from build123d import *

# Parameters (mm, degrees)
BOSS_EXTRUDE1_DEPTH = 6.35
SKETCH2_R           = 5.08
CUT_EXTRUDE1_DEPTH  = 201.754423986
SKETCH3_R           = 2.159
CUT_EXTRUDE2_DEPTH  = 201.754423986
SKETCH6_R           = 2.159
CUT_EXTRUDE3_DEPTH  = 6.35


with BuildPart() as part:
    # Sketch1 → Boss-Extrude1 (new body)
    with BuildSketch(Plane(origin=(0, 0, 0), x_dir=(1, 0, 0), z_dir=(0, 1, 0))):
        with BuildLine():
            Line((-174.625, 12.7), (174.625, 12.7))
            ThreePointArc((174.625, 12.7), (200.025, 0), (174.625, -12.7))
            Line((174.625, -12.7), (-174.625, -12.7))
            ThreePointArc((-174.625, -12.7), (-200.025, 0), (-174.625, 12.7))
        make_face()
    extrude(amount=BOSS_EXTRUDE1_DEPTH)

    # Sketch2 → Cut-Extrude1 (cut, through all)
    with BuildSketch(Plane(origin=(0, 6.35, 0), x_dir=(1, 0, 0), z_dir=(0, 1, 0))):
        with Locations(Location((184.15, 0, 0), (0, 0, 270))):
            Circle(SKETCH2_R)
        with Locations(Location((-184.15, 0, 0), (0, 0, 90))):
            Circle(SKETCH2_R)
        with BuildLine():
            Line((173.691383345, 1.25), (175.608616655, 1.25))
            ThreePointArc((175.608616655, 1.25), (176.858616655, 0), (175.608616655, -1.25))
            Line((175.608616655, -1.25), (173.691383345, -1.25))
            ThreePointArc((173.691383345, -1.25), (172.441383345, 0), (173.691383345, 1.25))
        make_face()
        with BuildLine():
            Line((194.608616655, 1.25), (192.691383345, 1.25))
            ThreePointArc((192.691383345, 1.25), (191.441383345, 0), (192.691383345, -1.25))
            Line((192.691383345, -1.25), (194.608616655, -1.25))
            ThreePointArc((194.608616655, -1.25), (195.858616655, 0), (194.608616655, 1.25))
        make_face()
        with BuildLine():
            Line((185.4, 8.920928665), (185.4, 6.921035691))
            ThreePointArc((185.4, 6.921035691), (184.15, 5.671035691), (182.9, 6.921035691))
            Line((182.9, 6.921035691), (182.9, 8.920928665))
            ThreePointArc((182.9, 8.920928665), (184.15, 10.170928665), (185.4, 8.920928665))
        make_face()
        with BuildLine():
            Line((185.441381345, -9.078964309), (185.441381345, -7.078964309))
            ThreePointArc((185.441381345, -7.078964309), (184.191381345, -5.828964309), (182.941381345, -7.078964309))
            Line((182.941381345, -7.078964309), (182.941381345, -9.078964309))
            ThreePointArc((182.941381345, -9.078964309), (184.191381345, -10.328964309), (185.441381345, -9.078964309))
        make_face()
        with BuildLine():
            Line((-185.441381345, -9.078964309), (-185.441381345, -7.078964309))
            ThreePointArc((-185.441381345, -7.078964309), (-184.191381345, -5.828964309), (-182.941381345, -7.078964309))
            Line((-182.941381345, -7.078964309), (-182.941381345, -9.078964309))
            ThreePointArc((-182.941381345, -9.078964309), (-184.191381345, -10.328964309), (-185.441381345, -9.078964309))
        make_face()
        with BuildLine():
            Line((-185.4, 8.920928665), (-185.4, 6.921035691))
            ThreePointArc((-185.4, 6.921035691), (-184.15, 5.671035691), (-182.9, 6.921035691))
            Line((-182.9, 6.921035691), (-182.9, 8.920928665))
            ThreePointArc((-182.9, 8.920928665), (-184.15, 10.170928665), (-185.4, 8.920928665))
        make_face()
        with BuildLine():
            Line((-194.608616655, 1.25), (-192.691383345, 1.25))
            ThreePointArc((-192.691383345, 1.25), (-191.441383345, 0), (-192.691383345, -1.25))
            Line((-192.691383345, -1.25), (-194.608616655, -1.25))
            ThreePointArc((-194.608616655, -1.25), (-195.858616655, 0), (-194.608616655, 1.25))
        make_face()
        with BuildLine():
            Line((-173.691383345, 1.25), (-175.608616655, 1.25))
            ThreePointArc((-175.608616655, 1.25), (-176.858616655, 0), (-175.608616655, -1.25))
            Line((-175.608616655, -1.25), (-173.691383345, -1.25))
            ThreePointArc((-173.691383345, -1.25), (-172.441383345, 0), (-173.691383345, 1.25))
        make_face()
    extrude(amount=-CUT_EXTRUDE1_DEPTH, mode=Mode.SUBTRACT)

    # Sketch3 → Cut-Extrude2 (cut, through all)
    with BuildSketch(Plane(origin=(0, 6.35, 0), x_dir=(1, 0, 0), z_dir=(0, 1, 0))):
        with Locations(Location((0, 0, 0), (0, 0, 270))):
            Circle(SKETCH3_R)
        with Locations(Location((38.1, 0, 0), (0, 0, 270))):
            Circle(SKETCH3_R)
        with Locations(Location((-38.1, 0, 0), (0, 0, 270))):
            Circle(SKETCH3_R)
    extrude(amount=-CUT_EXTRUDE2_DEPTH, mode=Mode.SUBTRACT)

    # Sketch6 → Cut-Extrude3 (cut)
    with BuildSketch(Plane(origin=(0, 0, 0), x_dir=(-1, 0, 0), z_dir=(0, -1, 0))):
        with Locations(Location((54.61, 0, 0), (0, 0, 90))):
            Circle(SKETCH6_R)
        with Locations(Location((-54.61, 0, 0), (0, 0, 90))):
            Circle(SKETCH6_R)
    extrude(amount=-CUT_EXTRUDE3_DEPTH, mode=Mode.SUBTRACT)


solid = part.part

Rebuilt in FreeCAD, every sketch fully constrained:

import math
import FreeCAD as App
import Part
import Sketcher
Q = App.Units.Quantity

doc = App.newDocument("Part")
body = doc.addObject("PartDesign::Body", "Body")

# Sketch on XZ plane
sketch1 = body.newObject("Sketcher::SketchObject", "Sketch")
sketch1.AttachmentSupport = (doc.getObject("XZ_Plane"), [""])
sketch1.MapMode = "FlatFace"
sketch1.addGeometry([
    Part.LineSegment(App.Vector(175, -13, 0), App.Vector(-175, -13, 0)),
    Part.ArcOfCircle(Part.Circle(App.Vector(-184, 0, 0), App.Vector(0, 0, 1), 16), math.radians(53), math.radians(307)),
    Part.LineSegment(App.Vector(-175, 13, 0), App.Vector(175, 13, 0)),
    Part.ArcOfCircle(Part.Circle(App.Vector(184, 0, 0), App.Vector(0, 0, 1), 16), math.radians(-127), math.radians(127)),
], False)
sketch1.addConstraint([
    Sketcher.Constraint("Coincident", 0, 2, 1, 2),
    Sketcher.Constraint("Coincident", 1, 1, 2, 1),
    Sketcher.Constraint("Coincident", 2, 2, 3, 2),
    Sketcher.Constraint("Coincident", 3, 1, 0, 1),
    Sketcher.Constraint("Horizontal", 0),
    Sketcher.Constraint("Horizontal", 2),
    Sketcher.Constraint("Equal", 1, 3),
    Sketcher.Constraint("Symmetric", 1, 3, 3, 3, -1, 1),
    Sketcher.Constraint("Symmetric", 0, 2, 1, 1, -1),
    Sketcher.Constraint("Radius", 1, Q("0.625 in")),
    Sketcher.Constraint("DistanceY", 0, 2, 1, 1, Q("1 in")),
    Sketcher.Constraint("DistanceX", 0, 2, 0, 1, Q("13.75 in")),
])
pad1 = body.newObject("PartDesign::Pad", "Pad")
pad1.Profile = sketch1
pad1.Length = Q("0.25 in")
pad1.Reversed = True

# Sketch on XZ plane
sketch2 = body.newObject("Sketcher::SketchObject", "Sketch001")
sketch2.AttachmentSupport = (doc.getObject("XZ_Plane"), [""])
sketch2.MapMode = "FlatFace"
sketch2.AttachmentOffset = App.Placement(App.Vector(0, 0, -0.25 * 25.4), App.Rotation())
sketch2.addGeometry([
    Part.Circle(App.Vector(184.2, 0, 0), App.Vector(0, 0, 1), 5.1),  # 0
    Part.Circle(App.Vector(-184.2, 0, 0), App.Vector(0, 0, 1), 5.1),  # 1
    Part.LineSegment(App.Vector(175.6, -1.2, 0), App.Vector(173.7, -1.2, 0)),  # 2
    Part.ArcOfCircle(Part.Circle(App.Vector(173.7, 0, 0), App.Vector(0, 0, 1), 1.2), math.radians(90), math.radians(270)),  # 3
    Part.LineSegment(App.Vector(173.7, 1.2, 0), App.Vector(175.6, 1.2, 0)),  # 4
    Part.ArcOfCircle(Part.Circle(App.Vector(175.6, 0, 0), App.Vector(0, 0, 1), 1.2), math.radians(-90), math.radians(90)),  # 5
    Part.LineSegment(App.Vector(194.6, -1.2, 0), App.Vector(192.7, -1.2, 0)),  # 6
    Part.ArcOfCircle(Part.Circle(App.Vector(192.7, 0, 0), App.Vector(0, 0, 1), 1.2), math.radians(90), math.radians(270)),  # 7
    Part.LineSegment(App.Vector(192.7, 1.2, 0), App.Vector(194.6, 1.2, 0)),  # 8
    Part.ArcOfCircle(Part.Circle(App.Vector(194.6, 0, 0), App.Vector(0, 0, 1), 1.2), math.radians(-90), math.radians(90)),  # 9
    Part.LineSegment(App.Vector(185.4, -6.9, 0), App.Vector(185.4, -8.9, 0)),  # 10
    Part.ArcOfCircle(Part.Circle(App.Vector(184.2, -8.9, 0), App.Vector(0, 0, 1), 1.2), math.radians(180), math.radians(360)),  # 11
    Part.LineSegment(App.Vector(182.9, -8.9, 0), App.Vector(182.9, -6.9, 0)),  # 12
    Part.ArcOfCircle(Part.Circle(App.Vector(184.2, -6.9, 0), App.Vector(0, 0, 1), 1.2), math.radians(0), math.radians(180)),  # 13
    Part.LineSegment(App.Vector(185.4, 9.1, 0), App.Vector(185.4, 7.1, 0)),  # 14
    Part.ArcOfCircle(Part.Circle(App.Vector(184.2, 7.1, 0), App.Vector(0, 0, 1), 1.2), math.radians(180), math.radians(360)),  # 15
    Part.LineSegment(App.Vector(182.9, 7.1, 0), App.Vector(182.9, 9.1, 0)),  # 16
    Part.ArcOfCircle(Part.Circle(App.Vector(184.2, 9.1, 0), App.Vector(0, 0, 1), 1.2), math.radians(0), math.radians(180)),  # 17
    Part.LineSegment(App.Vector(-185.4, 7.1, 0), App.Vector(-185.4, 9.1, 0)),  # 18
    Part.ArcOfCircle(Part.Circle(App.Vector(-184.2, 9.1, 0), App.Vector(0, 0, 1), 1.2), math.radians(0), math.radians(180)),  # 19
    Part.LineSegment(App.Vector(-182.9, 9.1, 0), App.Vector(-182.9, 7.1, 0)),  # 20
    Part.ArcOfCircle(Part.Circle(App.Vector(-184.2, 7.1, 0), App.Vector(0, 0, 1), 1.2), math.radians(180), math.radians(360)),  # 21
    Part.LineSegment(App.Vector(-185.4, -8.9, 0), App.Vector(-185.4, -6.9, 0)),  # 22
    Part.ArcOfCircle(Part.Circle(App.Vector(-184.2, -6.9, 0), App.Vector(0, 0, 1), 1.2), math.radians(0), math.radians(180)),  # 23
    Part.LineSegment(App.Vector(-182.9, -6.9, 0), App.Vector(-182.9, -8.9, 0)),  # 24
    Part.ArcOfCircle(Part.Circle(App.Vector(-184.2, -8.9, 0), App.Vector(0, 0, 1), 1.2), math.radians(180), math.radians(360)),  # 25
    Part.LineSegment(App.Vector(-192.7, -1.2, 0), App.Vector(-194.6, -1.2, 0)),  # 26
    Part.ArcOfCircle(Part.Circle(App.Vector(-194.6, 0, 0), App.Vector(0, 0, 1), 1.2), math.radians(90), math.radians(270)),  # 27
    Part.LineSegment(App.Vector(-194.6, 1.2, 0), App.Vector(-192.7, 1.2, 0)),  # 28
    Part.ArcOfCircle(Part.Circle(App.Vector(-192.7, 0, 0), App.Vector(0, 0, 1), 1.2), math.radians(-90), math.radians(90)),  # 29
    Part.LineSegment(App.Vector(-173.7, -1.2, 0), App.Vector(-175.6, -1.2, 0)),  # 30
    Part.ArcOfCircle(Part.Circle(App.Vector(-175.6, 0, 0), App.Vector(0, 0, 1), 1.2), math.radians(90), math.radians(270)),  # 31
    Part.LineSegment(App.Vector(-175.6, 1.2, 0), App.Vector(-173.7, 1.2, 0)),  # 32
    Part.ArcOfCircle(Part.Circle(App.Vector(-173.7, 0, 0), App.Vector(0, 0, 1), 1.2), math.radians(-90), math.radians(90)),  # 33
], False)
sketch2.addConstraint([
    Sketcher.Constraint("Tangent", 2, 2, 3, 2),
    Sketcher.Constraint("Tangent", 3, 1, 4, 1),
    Sketcher.Constraint("Tangent", 4, 2, 5, 2),
    Sketcher.Constraint("Tangent", 5, 1, 2, 1),
    Sketcher.Constraint("Tangent", 6, 2, 7, 2),
    Sketcher.Constraint("Tangent", 7, 1, 8, 1),
    Sketcher.Constraint("Tangent", 8, 2, 9, 2),
    Sketcher.Constraint("Tangent", 9, 1, 6, 1),
    Sketcher.Constraint("Tangent", 10, 2, 11, 2),
    Sketcher.Constraint("Tangent", 11, 1, 12, 1),
    Sketcher.Constraint("Tangent", 12, 2, 13, 2),
    Sketcher.Constraint("Tangent", 13, 1, 10, 1),
    Sketcher.Constraint("Tangent", 14, 2, 15, 2),
    Sketcher.Constraint("Tangent", 15, 1, 16, 1),
    Sketcher.Constraint("Tangent", 16, 2, 17, 2),
    Sketcher.Constraint("Tangent", 17, 1, 14, 1),
    Sketcher.Constraint("Tangent", 18, 2, 19, 2),
    Sketcher.Constraint("Tangent", 19, 1, 20, 1),
    Sketcher.Constraint("Tangent", 20, 2, 21, 2),
    Sketcher.Constraint("Tangent", 21, 1, 18, 1),
    Sketcher.Constraint("Tangent", 22, 2, 23, 2),
    Sketcher.Constraint("Tangent", 23, 1, 24, 1),
    Sketcher.Constraint("Tangent", 24, 2, 25, 2),
    Sketcher.Constraint("Tangent", 25, 1, 22, 1),
    Sketcher.Constraint("Tangent", 26, 2, 27, 2),
    Sketcher.Constraint("Tangent", 27, 1, 28, 1),
    Sketcher.Constraint("Tangent", 28, 2, 29, 2),
    Sketcher.Constraint("Tangent", 29, 1, 26, 1),
    Sketcher.Constraint("Tangent", 30, 2, 31, 2),
    Sketcher.Constraint("Tangent", 31, 1, 32, 1),
    Sketcher.Constraint("Tangent", 32, 2, 33, 2),
    Sketcher.Constraint("Tangent", 33, 1, 30, 1),
    Sketcher.Constraint("Horizontal", 2),
    Sketcher.Constraint("Horizontal", 4),
    Sketcher.Constraint("Horizontal", 6),
    Sketcher.Constraint("Horizontal", 8),
    Sketcher.Constraint("Vertical", 10),
    Sketcher.Constraint("Vertical", 12),
    Sketcher.Constraint("Vertical", 14),
    Sketcher.Constraint("Vertical", 16),
    Sketcher.Constraint("Vertical", 18),
    Sketcher.Constraint("Vertical", 20),
    Sketcher.Constraint("Vertical", 22),
    Sketcher.Constraint("Vertical", 24),
    Sketcher.Constraint("Horizontal", 26),
    Sketcher.Constraint("Horizontal", 28),
    Sketcher.Constraint("Horizontal", 30),
    Sketcher.Constraint("Horizontal", 32),
    Sketcher.Constraint("Equal", 0, 1),
    Sketcher.Constraint("Equal", 5, 7),
    Sketcher.Constraint("Equal", 9, 11),
    Sketcher.Constraint("Equal", 13, 15),
    Sketcher.Constraint("Equal", 17, 19),
    Sketcher.Constraint("Equal", 21, 23),
    Sketcher.Constraint("Equal", 25, 27),
    Sketcher.Constraint("Equal", 29, 31),
    Sketcher.Constraint("Symmetric", 0, 3, 1, 3, -1, 1),
    Sketcher.Constraint("Symmetric", 9, 3, 27, 3, -1, 1),
    Sketcher.Constraint("Symmetric", 5, 3, 31, 3, -1, 1),
    Sketcher.Constraint("Symmetric", 17, 3, 19, 3, -2),
    Sketcher.Constraint("Symmetric", 13, 3, 23, 3, -2),
    Sketcher.Constraint("Symmetric", 7, 3, 29, 3, -2),
    Sketcher.Constraint("Symmetric", 3, 3, 33, 3, -2),
    Sketcher.Constraint("PointOnObject", 0, 3, -1),
    Sketcher.Constraint("Horizontal", 15, 3, 21, 3),
    Sketcher.Constraint("Horizontal", 11, 3, 25, 3),
    Sketcher.Constraint("Vertical", 0, 3, 11, 3),
    Sketcher.Constraint("Equal", 4, 6),
    Sketcher.Constraint("Diameter", 0, Q("0.4 in")),
    Sketcher.Constraint("DistanceX", 1, 3, 0, 3, Q("14.5 in")),
    Sketcher.Constraint("Radius", 3, Q("1.25 mm")),
    Sketcher.Constraint("DistanceY", 14, 2, 14, 1, Q("2 mm")),
    Sketcher.Constraint("DistanceX", 3, 3, 7, 3, Q("19 mm")),
    Sketcher.Constraint("DistanceX", 15, 3, 7, 3, Q("8.500002 mm")),
    Sketcher.Constraint("DistanceY", 23, 3, 21, 3, Q("14 mm")),
    Sketcher.Constraint("DistanceX", 2, 2, 2, 1, Q("1.917233 mm")),
    Sketcher.Constraint("DistanceY", 10, 2, 10, 1, Q("1.999893 mm")),
    Sketcher.Constraint("DistanceY", 11, 3, -1, 1, Q("8.920929 mm")),
    Sketcher.Constraint("DistanceX", -1, 1, 15, 3, Q("184.191381 mm")),
])
pocket1 = body.newObject("PartDesign::Pocket", "Pocket")
pocket1.Profile = sketch2
pocket1.Type = "ThroughAll"
pocket1.Reversed = True

# Sketch on XZ plane
sketch3 = body.newObject("Sketcher::SketchObject", "Sketch002")
sketch3.AttachmentSupport = (doc.getObject("XZ_Plane"), [""])
sketch3.MapMode = "FlatFace"
sketch3.AttachmentOffset = App.Placement(App.Vector(0, 0, -0.25 * 25.4), App.Rotation())
sketch3.addGeometry([
    Part.Circle(App.Vector(0, 0, 0), App.Vector(0, 0, 1), 2.2),
    Part.Circle(App.Vector(38.1, 0, 0), App.Vector(0, 0, 1), 2.2),
    Part.Circle(App.Vector(-38.1, 0, 0), App.Vector(0, 0, 1), 2.2),
], False)
sketch3.addConstraint([
    Sketcher.Constraint("Coincident", 0, 3, -1, 1),
    Sketcher.Constraint("Equal", 0, 1),
    Sketcher.Constraint("Equal", 1, 2),
    Sketcher.Constraint("Symmetric", 1, 3, 2, 3, -1, 1),
    Sketcher.Constraint("PointOnObject", 1, 3, -1),
    Sketcher.Constraint("Diameter", 0, Q("0.17 in")),
    Sketcher.Constraint("DistanceX", 2, 3, 1, 3, Q("3 in")),
])
pocket2 = body.newObject("PartDesign::Pocket", "Pocket001")
pocket2.Profile = sketch3
pocket2.Type = "ThroughAll"
pocket2.Reversed = True

# Sketch on XZ plane
sketch4 = body.newObject("Sketcher::SketchObject", "Sketch003")
sketch4.AttachmentSupport = (doc.getObject("XZ_Plane"), [""])
sketch4.MapMode = "FlatFace"
sketch4.addGeometry([
    Part.Circle(App.Vector(-54.6, 0, 0), App.Vector(0, 0, 1), 2.2),
    Part.Circle(App.Vector(54.6, 0, 0), App.Vector(0, 0, 1), 2.2),
], False)
sketch4.addConstraint([
    Sketcher.Constraint("Equal", 0, 1),
    Sketcher.Constraint("Symmetric", 0, 3, 1, 3, -1, 1),
    Sketcher.Constraint("PointOnObject", 0, 3, -1),
    Sketcher.Constraint("Diameter", 0, Q("0.17 in")),
    Sketcher.Constraint("DistanceX", 0, 3, 1, 3, Q("4.3 in")),
])
pocket3 = body.newObject("PartDesign::Pocket", "Pocket002")
pocket3.Profile = sketch4
pocket3.Length = Q("0.25 in")

doc.recompute()
